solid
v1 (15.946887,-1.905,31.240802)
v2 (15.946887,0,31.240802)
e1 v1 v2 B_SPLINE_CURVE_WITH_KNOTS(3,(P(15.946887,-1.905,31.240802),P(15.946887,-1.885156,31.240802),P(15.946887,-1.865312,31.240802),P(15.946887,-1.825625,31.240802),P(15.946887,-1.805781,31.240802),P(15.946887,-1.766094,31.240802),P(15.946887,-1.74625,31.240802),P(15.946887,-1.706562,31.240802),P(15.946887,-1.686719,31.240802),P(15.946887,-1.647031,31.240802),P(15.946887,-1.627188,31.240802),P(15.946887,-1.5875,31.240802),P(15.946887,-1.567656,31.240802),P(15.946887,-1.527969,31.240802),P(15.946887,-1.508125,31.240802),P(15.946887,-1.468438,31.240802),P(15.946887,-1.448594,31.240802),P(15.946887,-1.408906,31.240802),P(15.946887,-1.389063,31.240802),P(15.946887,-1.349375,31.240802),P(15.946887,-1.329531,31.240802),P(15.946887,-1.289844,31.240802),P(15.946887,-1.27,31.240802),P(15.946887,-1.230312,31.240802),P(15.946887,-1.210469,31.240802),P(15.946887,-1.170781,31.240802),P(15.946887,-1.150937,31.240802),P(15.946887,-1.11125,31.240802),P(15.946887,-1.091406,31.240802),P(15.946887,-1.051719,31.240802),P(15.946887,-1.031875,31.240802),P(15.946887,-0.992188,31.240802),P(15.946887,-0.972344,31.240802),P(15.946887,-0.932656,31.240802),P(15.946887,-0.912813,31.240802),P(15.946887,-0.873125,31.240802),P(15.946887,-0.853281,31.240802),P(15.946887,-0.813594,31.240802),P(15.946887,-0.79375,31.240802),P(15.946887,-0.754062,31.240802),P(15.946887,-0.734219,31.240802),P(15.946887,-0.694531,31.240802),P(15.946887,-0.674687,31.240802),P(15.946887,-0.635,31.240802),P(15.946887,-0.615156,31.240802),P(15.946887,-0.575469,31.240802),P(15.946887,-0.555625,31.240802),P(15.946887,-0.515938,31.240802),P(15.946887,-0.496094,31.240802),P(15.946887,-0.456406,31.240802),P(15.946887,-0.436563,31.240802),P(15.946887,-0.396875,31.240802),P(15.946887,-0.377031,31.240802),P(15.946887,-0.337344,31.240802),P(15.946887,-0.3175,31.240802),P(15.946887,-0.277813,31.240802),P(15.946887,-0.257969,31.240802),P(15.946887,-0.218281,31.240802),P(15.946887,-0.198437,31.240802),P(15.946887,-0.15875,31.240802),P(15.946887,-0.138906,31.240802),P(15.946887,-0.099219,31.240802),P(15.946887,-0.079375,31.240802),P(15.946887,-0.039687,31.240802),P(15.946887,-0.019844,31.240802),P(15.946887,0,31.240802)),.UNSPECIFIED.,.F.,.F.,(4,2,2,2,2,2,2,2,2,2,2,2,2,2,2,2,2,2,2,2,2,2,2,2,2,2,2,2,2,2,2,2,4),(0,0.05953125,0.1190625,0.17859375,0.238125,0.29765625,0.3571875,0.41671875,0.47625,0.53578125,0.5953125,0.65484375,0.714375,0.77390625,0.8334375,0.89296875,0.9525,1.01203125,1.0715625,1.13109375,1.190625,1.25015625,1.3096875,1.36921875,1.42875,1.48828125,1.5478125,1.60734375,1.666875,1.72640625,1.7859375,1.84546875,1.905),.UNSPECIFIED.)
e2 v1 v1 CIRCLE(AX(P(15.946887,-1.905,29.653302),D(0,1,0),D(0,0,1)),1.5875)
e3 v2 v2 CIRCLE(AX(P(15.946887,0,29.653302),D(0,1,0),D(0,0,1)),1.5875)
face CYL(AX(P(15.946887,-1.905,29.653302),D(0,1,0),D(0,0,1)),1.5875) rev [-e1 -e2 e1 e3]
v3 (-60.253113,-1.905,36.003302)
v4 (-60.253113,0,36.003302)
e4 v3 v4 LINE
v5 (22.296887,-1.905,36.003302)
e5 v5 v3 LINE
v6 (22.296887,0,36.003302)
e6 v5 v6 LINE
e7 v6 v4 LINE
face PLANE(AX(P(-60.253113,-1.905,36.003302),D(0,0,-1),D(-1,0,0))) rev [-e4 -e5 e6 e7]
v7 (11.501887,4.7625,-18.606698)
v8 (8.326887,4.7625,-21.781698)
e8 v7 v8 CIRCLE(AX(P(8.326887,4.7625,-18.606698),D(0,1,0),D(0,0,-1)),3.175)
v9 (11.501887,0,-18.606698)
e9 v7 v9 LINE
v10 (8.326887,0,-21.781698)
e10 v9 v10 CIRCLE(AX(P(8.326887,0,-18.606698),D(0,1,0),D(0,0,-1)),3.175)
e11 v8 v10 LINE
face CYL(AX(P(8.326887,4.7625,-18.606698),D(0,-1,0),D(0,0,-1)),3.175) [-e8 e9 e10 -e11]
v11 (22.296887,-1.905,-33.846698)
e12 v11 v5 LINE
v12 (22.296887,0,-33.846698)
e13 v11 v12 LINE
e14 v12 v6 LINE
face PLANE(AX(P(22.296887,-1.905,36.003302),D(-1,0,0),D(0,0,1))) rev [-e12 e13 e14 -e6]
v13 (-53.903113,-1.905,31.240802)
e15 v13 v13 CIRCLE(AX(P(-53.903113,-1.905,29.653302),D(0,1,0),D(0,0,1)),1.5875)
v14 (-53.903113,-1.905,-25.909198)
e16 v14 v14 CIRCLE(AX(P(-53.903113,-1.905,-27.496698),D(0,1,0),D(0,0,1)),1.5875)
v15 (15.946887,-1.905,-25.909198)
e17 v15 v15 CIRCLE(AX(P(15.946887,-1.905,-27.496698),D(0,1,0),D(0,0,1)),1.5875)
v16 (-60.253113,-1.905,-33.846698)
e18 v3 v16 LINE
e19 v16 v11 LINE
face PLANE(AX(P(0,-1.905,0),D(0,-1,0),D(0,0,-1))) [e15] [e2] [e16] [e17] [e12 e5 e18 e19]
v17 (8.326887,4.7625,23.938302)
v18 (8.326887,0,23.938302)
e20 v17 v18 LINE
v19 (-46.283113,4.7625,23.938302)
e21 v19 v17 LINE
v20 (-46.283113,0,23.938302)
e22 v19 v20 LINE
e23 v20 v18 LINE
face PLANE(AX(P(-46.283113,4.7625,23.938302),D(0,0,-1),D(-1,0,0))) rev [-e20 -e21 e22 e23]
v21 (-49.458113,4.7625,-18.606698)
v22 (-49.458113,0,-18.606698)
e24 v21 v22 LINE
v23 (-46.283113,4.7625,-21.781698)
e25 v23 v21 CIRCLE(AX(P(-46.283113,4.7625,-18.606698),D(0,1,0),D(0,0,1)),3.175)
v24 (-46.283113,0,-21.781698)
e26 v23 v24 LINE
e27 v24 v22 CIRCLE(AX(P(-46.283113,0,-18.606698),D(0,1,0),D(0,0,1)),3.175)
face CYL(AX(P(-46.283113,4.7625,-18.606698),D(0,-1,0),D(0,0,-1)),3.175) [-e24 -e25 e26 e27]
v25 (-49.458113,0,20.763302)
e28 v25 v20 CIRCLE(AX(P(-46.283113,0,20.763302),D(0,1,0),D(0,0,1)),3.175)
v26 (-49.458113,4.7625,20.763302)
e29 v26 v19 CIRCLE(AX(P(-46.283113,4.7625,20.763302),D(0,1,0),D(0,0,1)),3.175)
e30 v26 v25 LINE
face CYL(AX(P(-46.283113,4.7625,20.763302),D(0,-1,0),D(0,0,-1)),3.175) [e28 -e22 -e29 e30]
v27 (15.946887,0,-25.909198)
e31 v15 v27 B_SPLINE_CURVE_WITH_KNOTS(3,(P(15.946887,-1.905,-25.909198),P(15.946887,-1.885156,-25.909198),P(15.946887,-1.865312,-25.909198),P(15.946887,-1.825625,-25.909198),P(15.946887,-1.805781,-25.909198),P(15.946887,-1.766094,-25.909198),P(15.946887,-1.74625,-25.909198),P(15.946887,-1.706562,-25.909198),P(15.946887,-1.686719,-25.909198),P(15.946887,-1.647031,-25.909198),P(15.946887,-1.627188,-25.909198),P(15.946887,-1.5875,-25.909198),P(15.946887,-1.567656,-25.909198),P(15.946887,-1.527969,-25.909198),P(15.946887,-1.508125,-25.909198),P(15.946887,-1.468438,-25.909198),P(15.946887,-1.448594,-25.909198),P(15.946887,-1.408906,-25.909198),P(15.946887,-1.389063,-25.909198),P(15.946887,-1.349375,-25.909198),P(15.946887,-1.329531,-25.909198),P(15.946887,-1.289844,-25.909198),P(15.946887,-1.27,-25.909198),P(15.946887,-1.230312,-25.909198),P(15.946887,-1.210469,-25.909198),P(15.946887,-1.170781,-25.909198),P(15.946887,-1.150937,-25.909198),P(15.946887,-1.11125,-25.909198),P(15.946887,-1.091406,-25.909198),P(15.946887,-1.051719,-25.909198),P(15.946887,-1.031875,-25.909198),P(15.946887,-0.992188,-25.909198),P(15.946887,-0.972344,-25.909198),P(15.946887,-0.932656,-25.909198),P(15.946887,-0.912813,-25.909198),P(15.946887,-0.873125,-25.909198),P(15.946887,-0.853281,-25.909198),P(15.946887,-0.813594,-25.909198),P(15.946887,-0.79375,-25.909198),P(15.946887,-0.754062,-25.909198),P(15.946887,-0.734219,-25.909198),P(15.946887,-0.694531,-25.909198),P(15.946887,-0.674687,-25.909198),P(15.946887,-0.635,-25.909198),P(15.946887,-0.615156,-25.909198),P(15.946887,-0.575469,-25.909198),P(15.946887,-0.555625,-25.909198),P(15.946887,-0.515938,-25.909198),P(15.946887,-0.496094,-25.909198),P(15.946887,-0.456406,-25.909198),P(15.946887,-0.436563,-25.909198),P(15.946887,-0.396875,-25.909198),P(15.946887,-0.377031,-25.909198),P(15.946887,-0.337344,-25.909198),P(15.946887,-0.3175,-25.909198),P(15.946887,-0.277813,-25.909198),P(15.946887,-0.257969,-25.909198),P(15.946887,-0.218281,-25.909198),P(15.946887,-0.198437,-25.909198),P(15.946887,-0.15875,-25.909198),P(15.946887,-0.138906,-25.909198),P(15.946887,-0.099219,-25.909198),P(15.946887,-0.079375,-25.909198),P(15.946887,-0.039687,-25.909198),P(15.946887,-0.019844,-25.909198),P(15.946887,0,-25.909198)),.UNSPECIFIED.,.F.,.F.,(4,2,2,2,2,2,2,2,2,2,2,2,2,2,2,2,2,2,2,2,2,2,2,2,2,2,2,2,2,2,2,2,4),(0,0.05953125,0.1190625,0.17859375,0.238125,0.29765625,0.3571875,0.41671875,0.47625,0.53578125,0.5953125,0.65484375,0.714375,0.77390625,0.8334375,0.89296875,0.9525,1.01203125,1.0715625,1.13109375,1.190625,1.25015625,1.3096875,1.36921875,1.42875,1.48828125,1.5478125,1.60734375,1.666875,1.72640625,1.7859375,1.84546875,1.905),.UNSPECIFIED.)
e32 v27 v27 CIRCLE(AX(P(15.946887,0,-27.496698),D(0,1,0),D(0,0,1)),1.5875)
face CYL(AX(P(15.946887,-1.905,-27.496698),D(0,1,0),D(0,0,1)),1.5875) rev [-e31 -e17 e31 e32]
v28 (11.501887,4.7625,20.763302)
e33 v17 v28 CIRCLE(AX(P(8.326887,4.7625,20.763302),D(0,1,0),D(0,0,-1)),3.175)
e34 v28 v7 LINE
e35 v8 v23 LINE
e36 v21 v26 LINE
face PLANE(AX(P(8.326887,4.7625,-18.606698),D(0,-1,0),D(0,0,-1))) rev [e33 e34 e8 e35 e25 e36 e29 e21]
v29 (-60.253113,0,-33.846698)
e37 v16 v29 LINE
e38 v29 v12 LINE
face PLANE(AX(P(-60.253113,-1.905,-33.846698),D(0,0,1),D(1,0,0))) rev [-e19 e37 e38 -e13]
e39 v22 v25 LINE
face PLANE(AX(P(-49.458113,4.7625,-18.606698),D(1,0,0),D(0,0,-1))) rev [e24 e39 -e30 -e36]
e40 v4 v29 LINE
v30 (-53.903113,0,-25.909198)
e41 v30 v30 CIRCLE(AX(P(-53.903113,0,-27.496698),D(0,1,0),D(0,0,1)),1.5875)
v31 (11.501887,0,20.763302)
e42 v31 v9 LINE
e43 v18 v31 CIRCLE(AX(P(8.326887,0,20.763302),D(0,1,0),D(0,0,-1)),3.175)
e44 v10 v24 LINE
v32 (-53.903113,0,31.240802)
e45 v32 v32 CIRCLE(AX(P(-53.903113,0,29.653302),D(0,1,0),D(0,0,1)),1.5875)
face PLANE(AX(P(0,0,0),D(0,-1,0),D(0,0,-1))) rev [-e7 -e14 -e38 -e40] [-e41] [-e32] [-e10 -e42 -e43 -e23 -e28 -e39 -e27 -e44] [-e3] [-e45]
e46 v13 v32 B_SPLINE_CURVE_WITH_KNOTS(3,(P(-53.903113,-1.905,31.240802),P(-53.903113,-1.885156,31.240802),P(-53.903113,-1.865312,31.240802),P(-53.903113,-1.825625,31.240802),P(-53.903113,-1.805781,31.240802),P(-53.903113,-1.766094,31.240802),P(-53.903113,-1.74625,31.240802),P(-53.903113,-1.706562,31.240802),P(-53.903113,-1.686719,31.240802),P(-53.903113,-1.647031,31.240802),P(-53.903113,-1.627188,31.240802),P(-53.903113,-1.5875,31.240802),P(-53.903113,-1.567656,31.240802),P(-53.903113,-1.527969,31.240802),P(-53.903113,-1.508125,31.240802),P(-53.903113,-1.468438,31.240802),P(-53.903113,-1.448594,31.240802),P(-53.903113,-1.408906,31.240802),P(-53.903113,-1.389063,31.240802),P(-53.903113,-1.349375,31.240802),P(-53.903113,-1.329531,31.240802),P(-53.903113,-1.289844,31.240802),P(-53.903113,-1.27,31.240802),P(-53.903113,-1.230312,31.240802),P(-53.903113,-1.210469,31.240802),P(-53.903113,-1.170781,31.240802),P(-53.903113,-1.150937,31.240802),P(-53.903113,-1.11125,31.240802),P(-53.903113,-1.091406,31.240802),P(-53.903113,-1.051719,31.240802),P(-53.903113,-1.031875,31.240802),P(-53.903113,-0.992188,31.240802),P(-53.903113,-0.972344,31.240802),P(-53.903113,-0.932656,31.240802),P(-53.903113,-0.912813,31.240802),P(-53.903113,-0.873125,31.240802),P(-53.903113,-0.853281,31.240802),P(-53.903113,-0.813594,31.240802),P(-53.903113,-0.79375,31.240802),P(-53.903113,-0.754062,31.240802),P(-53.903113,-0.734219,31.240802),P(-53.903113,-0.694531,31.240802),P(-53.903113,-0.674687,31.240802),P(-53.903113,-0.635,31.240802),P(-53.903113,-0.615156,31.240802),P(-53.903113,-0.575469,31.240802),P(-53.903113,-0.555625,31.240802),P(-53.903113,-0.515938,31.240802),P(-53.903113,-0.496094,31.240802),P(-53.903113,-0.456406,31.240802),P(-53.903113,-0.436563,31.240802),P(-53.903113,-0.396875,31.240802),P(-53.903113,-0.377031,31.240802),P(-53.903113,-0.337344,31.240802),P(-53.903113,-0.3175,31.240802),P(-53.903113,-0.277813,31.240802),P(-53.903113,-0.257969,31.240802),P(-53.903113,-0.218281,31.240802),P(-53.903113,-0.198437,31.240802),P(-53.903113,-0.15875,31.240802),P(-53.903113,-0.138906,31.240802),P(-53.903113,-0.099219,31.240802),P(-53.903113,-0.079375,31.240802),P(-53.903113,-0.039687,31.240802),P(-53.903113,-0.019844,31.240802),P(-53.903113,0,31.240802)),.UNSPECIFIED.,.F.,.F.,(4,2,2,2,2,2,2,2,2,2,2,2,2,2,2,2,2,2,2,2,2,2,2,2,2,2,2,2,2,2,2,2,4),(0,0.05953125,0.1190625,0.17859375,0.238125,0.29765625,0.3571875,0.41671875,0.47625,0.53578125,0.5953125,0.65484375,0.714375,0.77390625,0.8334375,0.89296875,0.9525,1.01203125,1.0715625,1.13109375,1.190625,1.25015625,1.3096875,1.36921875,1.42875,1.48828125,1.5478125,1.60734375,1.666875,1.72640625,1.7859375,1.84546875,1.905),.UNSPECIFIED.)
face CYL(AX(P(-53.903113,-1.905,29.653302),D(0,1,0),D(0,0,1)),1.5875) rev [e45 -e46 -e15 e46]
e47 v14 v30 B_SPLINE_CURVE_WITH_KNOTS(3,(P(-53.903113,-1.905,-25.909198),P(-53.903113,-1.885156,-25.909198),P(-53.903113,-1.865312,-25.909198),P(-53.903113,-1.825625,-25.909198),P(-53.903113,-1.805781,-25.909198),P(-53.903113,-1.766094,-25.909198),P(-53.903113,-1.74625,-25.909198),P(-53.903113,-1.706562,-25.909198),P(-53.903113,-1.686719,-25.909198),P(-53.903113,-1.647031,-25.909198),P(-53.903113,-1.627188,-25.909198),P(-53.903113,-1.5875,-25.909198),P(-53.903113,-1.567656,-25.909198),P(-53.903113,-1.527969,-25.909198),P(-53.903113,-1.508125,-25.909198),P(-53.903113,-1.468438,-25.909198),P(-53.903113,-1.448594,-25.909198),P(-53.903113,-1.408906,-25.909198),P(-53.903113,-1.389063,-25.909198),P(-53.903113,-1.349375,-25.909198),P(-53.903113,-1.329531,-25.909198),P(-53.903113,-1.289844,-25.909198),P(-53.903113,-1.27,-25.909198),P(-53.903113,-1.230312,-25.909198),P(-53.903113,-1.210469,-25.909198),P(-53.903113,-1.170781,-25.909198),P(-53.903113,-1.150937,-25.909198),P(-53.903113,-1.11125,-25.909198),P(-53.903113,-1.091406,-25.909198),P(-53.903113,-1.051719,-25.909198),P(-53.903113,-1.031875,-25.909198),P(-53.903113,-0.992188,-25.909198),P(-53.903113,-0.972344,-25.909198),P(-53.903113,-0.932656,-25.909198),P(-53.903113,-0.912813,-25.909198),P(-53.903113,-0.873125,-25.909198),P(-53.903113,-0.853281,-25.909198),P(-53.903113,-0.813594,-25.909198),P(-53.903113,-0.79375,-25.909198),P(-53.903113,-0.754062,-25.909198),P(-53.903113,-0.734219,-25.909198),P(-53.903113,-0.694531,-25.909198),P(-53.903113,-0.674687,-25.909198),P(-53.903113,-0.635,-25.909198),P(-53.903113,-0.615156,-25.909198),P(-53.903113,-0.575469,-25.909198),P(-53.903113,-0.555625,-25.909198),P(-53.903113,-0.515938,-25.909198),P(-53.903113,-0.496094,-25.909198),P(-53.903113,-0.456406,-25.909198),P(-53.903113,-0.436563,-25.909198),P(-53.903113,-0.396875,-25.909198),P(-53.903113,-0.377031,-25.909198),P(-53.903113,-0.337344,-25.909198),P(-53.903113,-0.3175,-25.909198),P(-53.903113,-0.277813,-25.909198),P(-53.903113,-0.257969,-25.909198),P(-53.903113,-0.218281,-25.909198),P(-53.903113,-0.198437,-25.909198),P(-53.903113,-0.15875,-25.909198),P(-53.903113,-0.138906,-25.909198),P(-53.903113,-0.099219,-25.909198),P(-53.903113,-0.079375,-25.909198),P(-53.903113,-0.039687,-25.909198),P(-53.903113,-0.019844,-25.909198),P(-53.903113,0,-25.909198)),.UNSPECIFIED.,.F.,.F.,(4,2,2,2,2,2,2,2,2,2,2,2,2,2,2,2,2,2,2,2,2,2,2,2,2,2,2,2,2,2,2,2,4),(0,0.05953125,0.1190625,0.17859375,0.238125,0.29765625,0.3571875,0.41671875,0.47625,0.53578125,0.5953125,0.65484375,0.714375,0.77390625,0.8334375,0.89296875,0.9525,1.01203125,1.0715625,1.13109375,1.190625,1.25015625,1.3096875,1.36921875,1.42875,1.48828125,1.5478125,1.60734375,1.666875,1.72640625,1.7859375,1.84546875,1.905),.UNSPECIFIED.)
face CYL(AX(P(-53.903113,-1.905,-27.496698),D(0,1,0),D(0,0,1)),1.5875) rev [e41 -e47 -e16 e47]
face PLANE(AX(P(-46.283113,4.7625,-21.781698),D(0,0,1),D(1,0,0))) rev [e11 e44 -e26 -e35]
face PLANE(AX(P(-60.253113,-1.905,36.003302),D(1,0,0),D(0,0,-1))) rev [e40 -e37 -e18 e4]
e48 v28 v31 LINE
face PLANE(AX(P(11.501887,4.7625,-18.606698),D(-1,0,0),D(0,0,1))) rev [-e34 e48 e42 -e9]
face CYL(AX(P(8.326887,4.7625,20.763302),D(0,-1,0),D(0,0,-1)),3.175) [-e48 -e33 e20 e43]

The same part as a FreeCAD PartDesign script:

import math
import FreeCAD as App
import Part
import Sketcher
from FreeCAD import Vector
Q = App.Units.Quantity

doc = App.newDocument("Part")
body = doc.addObject("PartDesign::Body", "Body")

# Sketch on XZ plane
sketch1 = body.newObject("Sketcher::SketchObject", "Sketch")
sketch1.AttachmentSupport = (doc.getObject("XZ_Plane"), [""])
sketch1.MapMode = "FlatFace"
sketch1.addGeometry([
    Part.LineSegment(Vector(8.326887, -21.781698, 0), Vector(-46.283113, -21.781698, 0)),  # 0
    Part.ArcOfCircle(Part.Circle(Vector(-46.283113, -18.606698, 0), Vector(0, 0, 1), 3.175), math.radians(-180), math.radians(-90)),  # 1
    Part.LineSegment(Vector(-49.458113, -18.606698, 0), Vector(-49.458113, 20.763302, 0)),  # 2
    Part.ArcOfCircle(Part.Circle(Vector(-46.283113, 20.763302, 0), Vector(0, 0, 1), 3.175), math.radians(90), math.radians(180)),  # 3
    Part.LineSegment(Vector(-46.283113, 23.938302, 0), Vector(8.326887, 23.938302, 0)),  # 4
    Part.ArcOfCircle(Part.Circle(Vector(8.326887, 20.763302, 0), Vector(0, 0, 1), 3.175), math.radians(0), math.radians(90)),  # 5
    Part.LineSegment(Vector(11.501887, 20.763302, 0), Vector(11.501887, -18.606698, 0)),  # 6
    Part.ArcOfCircle(Part.Circle(Vector(8.326887, -18.606698, 0), Vector(0, 0, 1), 3.175), math.radians(-90), math.radians(0)),  # 7
], False)
sketch1.addConstraint([
    Sketcher.Constraint("Tangent", 0, 2, 1, 2),
    Sketcher.Constraint("Tangent", 1, 1, 2, 1),
    Sketcher.Constraint("Tangent", 2, 2, 3, 2),
    Sketcher.Constraint("Tangent", 3, 1, 4, 1),
    Sketcher.Constraint("Tangent", 4, 2, 5, 2),
    Sketcher.Constraint("Tangent", 5, 1, 6, 1),
    Sketcher.Constraint("Tangent", 6, 2, 7, 2),
    Sketcher.Constraint("Tangent", 7, 1, 0, 1),
    Sketcher.Constraint("Horizontal", 0),
    Sketcher.Constraint("Vertical", 2),
    Sketcher.Constraint("Horizontal", 4),
    Sketcher.Constraint("Vertical", 6),
    Sketcher.Constraint("Equal", 1, 3),
    Sketcher.Constraint("Equal", 3, 5),
    Sketcher.Constraint("Equal", 5, 7),
    Sketcher.Constraint("Radius", 1, Q("0.125 in")),
    Sketcher.Constraint("DistanceX", 0, 2, 0, 1, Q("2.15 in")),
    Sketcher.Constraint("DistanceY", 2, 1, 2, 2, Q("1.55 in")),
    Sketcher.Constraint("DistanceY", 1, 3, -1, 1, 18.606698),
    Sketcher.Constraint("DistanceX", 1, 3, -1, 1, 46.283113),
])
pad1 = body.newObject("PartDesign::Pad", "Pad")
pad1.Profile = sketch1
pad1.Length = Q("0.1875 in")
pad1.Reversed = True

# Sketch on XZ plane
sketch2 = body.newObject("Sketcher::SketchObject", "Sketch001")
sketch2.AttachmentSupport = (doc.getObject("XZ_Plane"), [""])
sketch2.MapMode = "FlatFace"
sketch2.addGeometry([
    Part.LineSegment(Vector(-60.253113, 36.003302, 0), Vector(-60.253113, -33.846698, 0)),
    Part.LineSegment(Vector(-60.253113, -33.846698, 0), Vector(22.296887, -33.846698, 0)),
    Part.LineSegment(Vector(22.296887, -33.846698, 0), Vector(22.296887, 36.003302, 0)),
    Part.LineSegment(Vector(22.296887, 36.003302, 0), Vector(-60.253113, 36.003302, 0)),
], False)
sketch2.addConstraint([
    Sketcher.Constraint("Coincident", 0, 2, 1, 1),
    Sketcher.Constraint("Coincident", 1, 2, 2, 1),
    Sketcher.Constraint("Coincident", 2, 2, 3, 1),
    Sketcher.Constraint("Coincident", 3, 2, 0, 1),
    Sketcher.Constraint("Vertical", 0),
    Sketcher.Constraint("Horizontal", 1),
    Sketcher.Constraint("Vertical", 2),
    Sketcher.Constraint("Horizontal", 3),
    Sketcher.Constraint("DistanceX", 1, 1, 1, 2, Q("3.25 in")),
    Sketcher.Constraint("DistanceY", 0, 2, 0, 1, Q("2.75 in")),
    Sketcher.Constraint("DistanceY", 0, 2, -1, 1, 33.846698),
    Sketcher.Constraint("DistanceX", 0, 2, -1, 1, 60.253113),
])
pad2 = body.newObject("PartDesign::Pad", "Pad001")
pad2.Profile = sketch2
pad2.Length = Q("0.075 in")

# Sketch on XZ plane
sketch3 = body.newObject("Sketcher::SketchObject", "Sketch002")
sketch3.AttachmentSupport = (doc.getObject("XZ_Plane"), [""])
sketch3.MapMode = "FlatFace"
sketch3.addGeometry([
    Part.Circle(Vector(-53.903113, -27.496698, 0), Vector(0, 0, 1), 1.5875),
    Part.Circle(Vector(15.946887, -27.496698, 0), Vector(0, 0, 1), 1.5875),
    Part.Circle(Vector(15.946887, 29.653302, 0), Vector(0, 0, 1), 1.5875),
    Part.Circle(Vector(-53.903113, 29.653302, 0), Vector(0, 0, 1), 1.5875),
], False)
sketch3.addConstraint([
    Sketcher.Constraint("Equal", 0, 1),
    Sketcher.Constraint("Equal", 1, 2),
    Sketcher.Constraint("Equal", 2, 3),
    Sketcher.Constraint("Horizontal", 0, 3, 1, 3),
    Sketcher.Constraint("Horizontal", 2, 3, 3, 3),
    Sketcher.Constraint("Vertical", 1, 3, 2, 3),
    Sketcher.Constraint("Vertical", 0, 3, 3, 3),
    Sketcher.Constraint("Diameter", 0, Q("0.125 in")),
    Sketcher.Constraint("DistanceX", 0, 3, 1, 3, Q("2.75 in")),
    Sketcher.Constraint("DistanceY", 1, 3, 2, 3, Q("2.25 in")),
    Sketcher.Constraint("DistanceY", 0, 3, -1, 1, 27.496698),
    Sketcher.Constraint("DistanceX", 0, 3, -1, 1, 53.903113),
])
pocket1 = body.newObject("PartDesign::Pocket", "Pocket")
pocket1.Profile = sketch3
pocket1.Type = "ThroughAll"
pocket1.Reversed = True

doc.recompute()
